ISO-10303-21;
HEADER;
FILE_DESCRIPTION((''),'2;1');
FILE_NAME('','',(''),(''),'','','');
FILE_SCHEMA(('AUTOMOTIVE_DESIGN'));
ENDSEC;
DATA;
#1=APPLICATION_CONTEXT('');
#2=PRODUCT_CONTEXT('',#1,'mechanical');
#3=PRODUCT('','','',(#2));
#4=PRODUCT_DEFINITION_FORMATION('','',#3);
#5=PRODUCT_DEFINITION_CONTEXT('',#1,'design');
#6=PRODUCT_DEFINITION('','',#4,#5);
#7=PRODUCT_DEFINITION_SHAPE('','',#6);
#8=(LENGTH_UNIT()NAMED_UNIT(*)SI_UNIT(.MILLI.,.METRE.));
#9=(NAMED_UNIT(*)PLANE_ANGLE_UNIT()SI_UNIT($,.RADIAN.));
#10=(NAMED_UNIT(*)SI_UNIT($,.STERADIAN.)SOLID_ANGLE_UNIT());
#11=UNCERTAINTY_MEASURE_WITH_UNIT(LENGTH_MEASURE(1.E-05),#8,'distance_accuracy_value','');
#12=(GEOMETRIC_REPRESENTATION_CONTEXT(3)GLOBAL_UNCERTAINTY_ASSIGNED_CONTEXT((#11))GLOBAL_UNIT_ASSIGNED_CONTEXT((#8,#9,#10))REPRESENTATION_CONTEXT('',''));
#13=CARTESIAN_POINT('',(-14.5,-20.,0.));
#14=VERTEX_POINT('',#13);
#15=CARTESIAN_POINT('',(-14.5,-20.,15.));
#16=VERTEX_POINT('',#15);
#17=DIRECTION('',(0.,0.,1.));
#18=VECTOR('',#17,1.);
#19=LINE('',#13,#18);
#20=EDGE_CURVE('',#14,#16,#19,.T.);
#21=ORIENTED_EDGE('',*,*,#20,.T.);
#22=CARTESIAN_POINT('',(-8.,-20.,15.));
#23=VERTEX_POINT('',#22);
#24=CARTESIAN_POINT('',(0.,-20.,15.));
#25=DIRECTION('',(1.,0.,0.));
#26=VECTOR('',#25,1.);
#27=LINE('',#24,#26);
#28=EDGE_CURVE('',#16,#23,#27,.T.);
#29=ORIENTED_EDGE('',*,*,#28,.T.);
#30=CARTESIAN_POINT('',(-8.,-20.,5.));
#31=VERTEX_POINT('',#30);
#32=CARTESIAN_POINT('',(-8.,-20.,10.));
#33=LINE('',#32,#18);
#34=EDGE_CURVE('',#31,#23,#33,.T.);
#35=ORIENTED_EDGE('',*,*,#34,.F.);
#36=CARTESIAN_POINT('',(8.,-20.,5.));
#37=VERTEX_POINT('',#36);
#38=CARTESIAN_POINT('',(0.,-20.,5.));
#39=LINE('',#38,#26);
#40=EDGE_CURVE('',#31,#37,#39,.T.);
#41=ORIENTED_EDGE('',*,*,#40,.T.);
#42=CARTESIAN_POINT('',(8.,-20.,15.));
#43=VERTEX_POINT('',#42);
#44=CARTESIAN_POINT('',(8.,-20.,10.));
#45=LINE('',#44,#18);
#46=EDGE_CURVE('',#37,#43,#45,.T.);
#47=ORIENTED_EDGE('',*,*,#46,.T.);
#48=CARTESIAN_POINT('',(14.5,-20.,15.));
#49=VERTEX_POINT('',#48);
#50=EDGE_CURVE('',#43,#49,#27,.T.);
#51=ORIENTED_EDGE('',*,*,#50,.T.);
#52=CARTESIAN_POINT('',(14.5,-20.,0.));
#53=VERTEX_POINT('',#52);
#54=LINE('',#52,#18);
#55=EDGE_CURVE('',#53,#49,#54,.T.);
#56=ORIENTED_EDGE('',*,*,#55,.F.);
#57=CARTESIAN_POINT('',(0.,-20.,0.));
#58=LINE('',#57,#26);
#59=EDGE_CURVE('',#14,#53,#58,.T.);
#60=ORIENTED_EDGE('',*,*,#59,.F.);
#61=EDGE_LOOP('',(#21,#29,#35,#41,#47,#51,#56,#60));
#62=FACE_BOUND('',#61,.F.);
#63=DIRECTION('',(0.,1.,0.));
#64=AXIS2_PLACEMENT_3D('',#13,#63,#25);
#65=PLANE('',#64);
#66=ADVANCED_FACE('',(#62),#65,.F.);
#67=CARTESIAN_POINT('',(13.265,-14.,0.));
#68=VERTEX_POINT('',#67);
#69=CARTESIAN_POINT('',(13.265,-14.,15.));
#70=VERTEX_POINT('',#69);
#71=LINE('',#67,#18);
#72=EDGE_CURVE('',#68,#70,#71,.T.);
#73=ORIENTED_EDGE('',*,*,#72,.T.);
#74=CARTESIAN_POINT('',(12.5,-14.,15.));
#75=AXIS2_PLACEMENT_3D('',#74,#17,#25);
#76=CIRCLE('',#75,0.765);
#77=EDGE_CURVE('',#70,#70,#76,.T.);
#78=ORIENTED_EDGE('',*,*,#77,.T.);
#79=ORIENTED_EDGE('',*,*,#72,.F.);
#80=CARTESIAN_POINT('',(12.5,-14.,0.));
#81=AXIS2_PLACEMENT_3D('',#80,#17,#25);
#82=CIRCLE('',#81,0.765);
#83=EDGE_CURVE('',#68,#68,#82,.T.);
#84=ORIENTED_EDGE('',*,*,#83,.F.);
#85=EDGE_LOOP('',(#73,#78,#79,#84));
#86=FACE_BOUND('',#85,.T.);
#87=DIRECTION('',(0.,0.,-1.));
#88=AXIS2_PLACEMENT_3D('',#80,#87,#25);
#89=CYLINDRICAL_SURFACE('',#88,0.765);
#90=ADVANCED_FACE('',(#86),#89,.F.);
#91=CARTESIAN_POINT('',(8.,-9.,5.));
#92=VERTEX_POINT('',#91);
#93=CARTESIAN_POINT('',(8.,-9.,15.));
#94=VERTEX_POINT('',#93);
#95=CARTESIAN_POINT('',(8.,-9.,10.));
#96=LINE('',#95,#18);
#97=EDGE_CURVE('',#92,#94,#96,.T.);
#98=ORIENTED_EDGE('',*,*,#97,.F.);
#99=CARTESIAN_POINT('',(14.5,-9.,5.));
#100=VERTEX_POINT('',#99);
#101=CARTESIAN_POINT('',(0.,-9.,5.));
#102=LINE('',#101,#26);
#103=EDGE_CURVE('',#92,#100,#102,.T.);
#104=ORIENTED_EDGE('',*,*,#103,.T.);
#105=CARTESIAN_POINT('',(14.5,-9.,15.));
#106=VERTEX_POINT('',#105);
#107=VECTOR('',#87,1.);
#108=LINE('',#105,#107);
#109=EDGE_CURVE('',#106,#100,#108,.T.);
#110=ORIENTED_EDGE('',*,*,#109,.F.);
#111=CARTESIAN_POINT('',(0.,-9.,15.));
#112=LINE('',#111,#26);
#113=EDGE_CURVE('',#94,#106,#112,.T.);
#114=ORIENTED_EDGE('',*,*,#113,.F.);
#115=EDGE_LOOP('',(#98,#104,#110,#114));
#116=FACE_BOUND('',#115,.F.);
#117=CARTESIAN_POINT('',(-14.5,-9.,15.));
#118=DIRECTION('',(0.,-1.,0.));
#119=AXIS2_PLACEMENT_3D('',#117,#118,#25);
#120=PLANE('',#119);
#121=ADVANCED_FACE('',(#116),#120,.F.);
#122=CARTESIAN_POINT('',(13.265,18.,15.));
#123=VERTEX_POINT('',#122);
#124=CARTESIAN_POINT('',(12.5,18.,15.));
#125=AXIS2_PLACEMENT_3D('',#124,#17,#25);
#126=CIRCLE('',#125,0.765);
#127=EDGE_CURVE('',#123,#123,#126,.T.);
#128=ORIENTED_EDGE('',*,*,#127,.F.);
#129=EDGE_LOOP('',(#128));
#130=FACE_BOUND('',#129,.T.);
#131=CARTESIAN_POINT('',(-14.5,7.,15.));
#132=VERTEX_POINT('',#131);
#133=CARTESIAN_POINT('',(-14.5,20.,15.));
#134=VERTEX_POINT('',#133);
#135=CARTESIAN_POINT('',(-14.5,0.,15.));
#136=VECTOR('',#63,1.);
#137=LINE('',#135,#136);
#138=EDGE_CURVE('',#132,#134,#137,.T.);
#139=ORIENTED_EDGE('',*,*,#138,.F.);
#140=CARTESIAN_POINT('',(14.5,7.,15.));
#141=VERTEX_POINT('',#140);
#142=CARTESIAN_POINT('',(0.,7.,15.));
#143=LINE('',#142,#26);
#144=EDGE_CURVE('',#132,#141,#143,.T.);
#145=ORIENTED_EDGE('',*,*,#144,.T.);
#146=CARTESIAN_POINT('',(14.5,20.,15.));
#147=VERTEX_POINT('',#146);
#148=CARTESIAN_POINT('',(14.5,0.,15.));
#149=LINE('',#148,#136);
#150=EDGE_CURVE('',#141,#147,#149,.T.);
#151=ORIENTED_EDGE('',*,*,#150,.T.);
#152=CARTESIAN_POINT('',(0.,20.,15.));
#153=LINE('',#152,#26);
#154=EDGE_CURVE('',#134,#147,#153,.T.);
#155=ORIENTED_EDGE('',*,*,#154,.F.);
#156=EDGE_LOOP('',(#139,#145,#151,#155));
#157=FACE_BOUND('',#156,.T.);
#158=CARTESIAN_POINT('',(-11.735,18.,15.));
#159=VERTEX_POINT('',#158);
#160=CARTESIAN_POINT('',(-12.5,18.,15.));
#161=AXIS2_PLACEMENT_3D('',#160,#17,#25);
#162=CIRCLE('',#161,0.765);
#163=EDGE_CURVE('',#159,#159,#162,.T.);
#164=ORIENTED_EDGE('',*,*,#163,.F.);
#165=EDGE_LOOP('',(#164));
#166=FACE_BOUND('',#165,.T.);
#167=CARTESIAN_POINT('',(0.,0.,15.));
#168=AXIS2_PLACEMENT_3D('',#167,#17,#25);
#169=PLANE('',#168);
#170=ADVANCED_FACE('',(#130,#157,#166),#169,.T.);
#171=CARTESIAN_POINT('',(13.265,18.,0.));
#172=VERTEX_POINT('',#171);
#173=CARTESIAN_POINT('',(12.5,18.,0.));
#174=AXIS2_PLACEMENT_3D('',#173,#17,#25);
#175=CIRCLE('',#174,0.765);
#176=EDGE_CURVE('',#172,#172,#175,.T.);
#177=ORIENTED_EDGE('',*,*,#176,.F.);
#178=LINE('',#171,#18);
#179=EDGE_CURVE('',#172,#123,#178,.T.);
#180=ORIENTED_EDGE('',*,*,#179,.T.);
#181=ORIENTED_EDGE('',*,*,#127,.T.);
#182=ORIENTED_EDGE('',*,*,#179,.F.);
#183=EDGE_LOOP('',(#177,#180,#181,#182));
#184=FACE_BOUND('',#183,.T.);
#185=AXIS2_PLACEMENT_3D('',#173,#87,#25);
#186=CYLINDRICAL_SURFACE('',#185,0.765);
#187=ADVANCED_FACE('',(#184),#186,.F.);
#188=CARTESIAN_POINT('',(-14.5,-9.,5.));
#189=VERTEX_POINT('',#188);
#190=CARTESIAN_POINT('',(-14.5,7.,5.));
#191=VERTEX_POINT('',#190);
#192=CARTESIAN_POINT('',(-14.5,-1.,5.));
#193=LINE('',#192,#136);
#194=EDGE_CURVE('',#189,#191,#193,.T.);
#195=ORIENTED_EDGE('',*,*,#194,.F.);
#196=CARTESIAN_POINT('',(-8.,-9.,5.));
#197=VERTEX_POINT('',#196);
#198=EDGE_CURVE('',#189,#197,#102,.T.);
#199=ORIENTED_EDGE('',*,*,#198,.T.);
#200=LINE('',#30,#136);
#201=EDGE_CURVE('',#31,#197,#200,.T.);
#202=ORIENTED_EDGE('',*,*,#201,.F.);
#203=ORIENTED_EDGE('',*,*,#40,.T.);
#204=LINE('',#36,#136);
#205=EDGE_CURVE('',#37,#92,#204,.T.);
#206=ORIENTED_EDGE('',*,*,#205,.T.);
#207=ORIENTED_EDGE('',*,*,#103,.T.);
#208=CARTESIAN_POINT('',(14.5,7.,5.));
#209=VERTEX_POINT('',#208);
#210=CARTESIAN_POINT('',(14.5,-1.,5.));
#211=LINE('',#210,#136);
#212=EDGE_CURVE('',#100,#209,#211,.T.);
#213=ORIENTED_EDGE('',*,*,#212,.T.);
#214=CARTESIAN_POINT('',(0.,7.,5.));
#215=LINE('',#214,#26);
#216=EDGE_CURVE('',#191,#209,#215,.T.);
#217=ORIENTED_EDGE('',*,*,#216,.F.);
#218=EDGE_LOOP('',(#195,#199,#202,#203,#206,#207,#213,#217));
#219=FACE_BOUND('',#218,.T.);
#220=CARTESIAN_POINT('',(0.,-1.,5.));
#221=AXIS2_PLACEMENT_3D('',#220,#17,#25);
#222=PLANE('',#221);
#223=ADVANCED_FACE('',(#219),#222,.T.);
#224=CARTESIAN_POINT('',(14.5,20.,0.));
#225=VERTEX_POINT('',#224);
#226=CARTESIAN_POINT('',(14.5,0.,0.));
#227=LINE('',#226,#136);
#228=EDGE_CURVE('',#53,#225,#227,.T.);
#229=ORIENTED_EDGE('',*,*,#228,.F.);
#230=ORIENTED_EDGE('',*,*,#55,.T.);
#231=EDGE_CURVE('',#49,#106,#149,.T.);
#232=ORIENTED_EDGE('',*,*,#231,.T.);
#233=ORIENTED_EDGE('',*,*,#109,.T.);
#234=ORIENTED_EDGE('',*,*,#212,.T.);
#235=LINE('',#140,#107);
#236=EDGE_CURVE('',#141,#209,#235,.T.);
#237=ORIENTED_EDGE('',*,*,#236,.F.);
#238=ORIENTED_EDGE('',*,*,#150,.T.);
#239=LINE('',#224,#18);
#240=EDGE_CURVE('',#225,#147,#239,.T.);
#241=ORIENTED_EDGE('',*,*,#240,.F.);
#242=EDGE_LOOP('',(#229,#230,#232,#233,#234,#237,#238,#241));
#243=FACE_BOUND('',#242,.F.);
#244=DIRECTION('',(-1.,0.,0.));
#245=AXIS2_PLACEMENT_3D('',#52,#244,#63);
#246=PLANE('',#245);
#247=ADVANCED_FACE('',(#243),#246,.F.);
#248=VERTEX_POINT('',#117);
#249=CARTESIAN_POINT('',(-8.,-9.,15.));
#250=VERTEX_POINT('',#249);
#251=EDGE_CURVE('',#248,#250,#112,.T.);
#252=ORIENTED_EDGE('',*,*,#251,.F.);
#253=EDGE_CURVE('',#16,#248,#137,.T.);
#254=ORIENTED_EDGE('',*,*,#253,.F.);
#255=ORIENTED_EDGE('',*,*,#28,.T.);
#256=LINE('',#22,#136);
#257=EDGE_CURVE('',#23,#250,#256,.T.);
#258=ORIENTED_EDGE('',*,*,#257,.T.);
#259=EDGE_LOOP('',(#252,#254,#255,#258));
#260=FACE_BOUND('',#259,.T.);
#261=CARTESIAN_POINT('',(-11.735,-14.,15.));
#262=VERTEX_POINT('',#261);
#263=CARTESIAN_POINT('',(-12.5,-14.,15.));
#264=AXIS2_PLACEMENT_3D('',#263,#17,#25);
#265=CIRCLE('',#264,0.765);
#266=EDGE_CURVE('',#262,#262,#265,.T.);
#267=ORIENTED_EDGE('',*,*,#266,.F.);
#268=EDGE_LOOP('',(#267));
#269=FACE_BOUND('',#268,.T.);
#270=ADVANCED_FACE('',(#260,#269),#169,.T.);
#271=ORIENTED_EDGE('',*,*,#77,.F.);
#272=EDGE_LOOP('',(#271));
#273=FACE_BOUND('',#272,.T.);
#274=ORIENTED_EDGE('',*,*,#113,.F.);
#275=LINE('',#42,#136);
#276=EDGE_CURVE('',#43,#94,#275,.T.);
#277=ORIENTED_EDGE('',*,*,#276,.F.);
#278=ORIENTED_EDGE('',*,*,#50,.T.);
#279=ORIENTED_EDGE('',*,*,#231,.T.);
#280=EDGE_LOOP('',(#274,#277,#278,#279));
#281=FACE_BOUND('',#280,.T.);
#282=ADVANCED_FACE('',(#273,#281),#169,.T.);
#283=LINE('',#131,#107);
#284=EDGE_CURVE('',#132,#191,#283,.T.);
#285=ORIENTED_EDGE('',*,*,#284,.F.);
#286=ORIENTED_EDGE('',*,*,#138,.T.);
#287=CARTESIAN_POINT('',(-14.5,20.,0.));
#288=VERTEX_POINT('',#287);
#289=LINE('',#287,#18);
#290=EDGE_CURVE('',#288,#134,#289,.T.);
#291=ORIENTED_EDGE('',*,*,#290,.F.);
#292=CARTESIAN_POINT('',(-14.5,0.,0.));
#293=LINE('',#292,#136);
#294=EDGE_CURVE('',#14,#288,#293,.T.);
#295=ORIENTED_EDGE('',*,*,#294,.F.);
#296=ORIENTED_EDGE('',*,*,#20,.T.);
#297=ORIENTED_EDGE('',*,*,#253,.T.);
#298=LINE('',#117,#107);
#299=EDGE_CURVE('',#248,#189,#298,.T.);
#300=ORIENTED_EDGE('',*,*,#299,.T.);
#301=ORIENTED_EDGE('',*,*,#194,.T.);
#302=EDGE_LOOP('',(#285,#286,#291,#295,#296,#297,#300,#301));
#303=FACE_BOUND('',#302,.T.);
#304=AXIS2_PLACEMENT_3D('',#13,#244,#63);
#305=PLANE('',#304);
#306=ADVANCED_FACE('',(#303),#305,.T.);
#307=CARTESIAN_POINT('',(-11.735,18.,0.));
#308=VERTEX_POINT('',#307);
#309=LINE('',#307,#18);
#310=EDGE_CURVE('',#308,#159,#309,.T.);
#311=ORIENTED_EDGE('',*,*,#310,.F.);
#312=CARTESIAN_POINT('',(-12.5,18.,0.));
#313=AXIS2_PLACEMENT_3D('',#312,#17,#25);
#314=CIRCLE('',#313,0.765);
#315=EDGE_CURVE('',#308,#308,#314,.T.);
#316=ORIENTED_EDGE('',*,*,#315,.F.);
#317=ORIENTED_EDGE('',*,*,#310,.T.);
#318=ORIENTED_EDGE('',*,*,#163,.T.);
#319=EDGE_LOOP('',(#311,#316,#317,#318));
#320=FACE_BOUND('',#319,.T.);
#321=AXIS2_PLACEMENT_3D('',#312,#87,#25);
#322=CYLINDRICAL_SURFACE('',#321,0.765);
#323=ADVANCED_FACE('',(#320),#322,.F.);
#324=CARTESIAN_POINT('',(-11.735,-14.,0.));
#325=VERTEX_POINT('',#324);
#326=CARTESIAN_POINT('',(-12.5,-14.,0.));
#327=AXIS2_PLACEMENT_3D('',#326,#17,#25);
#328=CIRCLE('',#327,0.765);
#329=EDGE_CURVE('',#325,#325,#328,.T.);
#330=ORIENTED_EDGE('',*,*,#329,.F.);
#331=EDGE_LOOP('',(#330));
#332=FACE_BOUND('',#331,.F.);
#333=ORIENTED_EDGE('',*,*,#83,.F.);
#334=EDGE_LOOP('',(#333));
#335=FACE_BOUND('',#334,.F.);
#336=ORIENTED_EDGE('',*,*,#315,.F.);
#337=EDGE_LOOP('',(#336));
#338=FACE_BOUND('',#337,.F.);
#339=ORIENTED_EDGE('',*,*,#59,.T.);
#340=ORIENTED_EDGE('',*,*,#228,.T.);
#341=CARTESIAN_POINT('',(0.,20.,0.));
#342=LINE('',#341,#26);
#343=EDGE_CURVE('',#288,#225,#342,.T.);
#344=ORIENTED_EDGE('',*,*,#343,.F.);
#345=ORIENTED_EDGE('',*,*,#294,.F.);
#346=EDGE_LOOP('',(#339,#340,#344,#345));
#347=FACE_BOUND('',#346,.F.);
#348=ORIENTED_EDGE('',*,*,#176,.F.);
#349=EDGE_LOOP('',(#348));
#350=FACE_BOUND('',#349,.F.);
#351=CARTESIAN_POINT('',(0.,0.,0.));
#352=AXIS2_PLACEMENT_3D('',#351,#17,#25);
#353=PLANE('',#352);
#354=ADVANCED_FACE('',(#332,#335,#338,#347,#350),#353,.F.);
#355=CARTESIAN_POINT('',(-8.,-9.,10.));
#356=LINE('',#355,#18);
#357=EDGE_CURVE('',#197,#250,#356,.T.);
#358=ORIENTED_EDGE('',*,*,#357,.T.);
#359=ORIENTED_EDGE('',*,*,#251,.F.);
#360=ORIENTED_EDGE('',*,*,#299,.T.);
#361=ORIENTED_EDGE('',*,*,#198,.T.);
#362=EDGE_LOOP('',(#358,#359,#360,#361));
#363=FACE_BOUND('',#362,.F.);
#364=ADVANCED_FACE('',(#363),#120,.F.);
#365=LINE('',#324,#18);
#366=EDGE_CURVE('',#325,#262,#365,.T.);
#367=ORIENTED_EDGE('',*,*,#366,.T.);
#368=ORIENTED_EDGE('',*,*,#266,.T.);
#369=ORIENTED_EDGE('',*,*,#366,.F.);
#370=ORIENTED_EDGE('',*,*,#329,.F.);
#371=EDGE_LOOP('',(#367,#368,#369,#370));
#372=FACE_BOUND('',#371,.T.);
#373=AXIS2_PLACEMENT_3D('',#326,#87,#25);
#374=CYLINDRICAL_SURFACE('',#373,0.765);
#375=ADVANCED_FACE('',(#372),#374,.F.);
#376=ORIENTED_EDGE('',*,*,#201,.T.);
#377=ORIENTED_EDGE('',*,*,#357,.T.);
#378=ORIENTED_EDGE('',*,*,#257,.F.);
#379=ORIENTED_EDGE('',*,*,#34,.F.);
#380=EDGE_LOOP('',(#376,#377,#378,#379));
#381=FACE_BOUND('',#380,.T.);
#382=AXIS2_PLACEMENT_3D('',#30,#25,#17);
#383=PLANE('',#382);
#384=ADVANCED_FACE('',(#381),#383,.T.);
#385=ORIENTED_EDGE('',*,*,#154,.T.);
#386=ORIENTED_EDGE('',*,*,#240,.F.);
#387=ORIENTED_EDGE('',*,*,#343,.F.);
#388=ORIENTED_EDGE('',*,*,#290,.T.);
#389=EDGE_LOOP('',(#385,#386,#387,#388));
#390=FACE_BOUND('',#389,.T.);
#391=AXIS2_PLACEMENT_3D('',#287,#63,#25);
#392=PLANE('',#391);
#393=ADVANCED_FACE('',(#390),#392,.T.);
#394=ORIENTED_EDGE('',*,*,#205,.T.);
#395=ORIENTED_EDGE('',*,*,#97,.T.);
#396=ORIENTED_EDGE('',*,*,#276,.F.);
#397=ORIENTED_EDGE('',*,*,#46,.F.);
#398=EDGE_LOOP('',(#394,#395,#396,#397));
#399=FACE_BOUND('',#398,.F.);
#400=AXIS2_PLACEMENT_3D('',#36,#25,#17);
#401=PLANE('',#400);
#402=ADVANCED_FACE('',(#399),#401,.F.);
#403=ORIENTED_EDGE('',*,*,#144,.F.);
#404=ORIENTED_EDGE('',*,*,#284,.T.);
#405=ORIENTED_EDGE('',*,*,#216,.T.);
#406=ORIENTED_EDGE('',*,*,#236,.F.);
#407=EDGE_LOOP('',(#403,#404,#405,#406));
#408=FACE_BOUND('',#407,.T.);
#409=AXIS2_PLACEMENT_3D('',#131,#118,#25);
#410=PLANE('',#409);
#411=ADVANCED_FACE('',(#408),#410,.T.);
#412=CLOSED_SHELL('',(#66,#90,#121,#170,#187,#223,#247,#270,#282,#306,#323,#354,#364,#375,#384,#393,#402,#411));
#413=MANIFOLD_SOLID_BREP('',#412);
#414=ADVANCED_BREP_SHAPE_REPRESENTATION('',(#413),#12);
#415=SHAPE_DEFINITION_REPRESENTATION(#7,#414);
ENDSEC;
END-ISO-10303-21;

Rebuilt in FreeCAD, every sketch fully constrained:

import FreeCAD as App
import Part
import Sketcher
from FreeCAD import Vector
Q = App.Units.Quantity


def add_polygon(sketch, points):
    """Adds a closed chain of lines whose ends are joined by coincident constraints."""
    first, n = sketch.GeometryCount, len(points)
    for a, b in zip(points, points[1:] + points[:1]):
        sketch.addGeometry(Part.LineSegment(App.Vector(*a, 0), App.Vector(*b, 0)), False)
    for i in range(n):
        sketch.addConstraint(Sketcher.Constraint("Coincident", first + i, 2, first + (i + 1) % n, 1))

doc = App.newDocument("Part")
params = doc.addObject("Spreadsheet::Sheet", "Params")
for row, (alias, value) in enumerate([
    ("sketch1_diameter", "1.53 mm"),
    ("sketch1_width", "29 mm"),
    ("sketch1_height", "40 mm"),
    ("pad1_length", "15 mm"),
    ("sketch2_width", "29 mm"),
    ("sketch2_height", "16 mm"),
    ("pocket1_length", "10 mm"),
    ("sketch3_width", "16 mm"),
    ("sketch3_height", "10 mm"),
    ("pocket2_length", "25 mm"),
], start=1):
    params.set(f"A{row}", alias)
    params.set(f"B{row}", "=" + value)
    params.setAlias(f"B{row}", alias)

body = doc.addObject("PartDesign::Body", "Body")

# Sketch on XY plane
sketch1 = body.newObject("Sketcher::SketchObject", "Sketch")
sketch1.AttachmentSupport = (doc.getObject("XY_Plane"), [""])
sketch1.MapMode = "FlatFace"
add_polygon(sketch1, [(-14.5, 20), (-14.5, -20), (14.5, -20), (14.5, 20)])  # lines 0-3
sketch1.addGeometry(Part.Circle(Vector(-12.5, -14, 0), Vector(0, 0, 1), 0.8), False)  # 4
sketch1.addGeometry(Part.Circle(Vector(12.5, -14, 0), Vector(0, 0, 1), 0.8), False)  # 5
sketch1.addGeometry(Part.Circle(Vector(-12.5, 18, 0), Vector(0, 0, 1), 0.8), False)  # 6
sketch1.addGeometry(Part.Circle(Vector(12.5, 18, 0), Vector(0, 0, 1), 0.8), False)  # 7
sketch1.addConstraint([
    Sketcher.Constraint("Vertical", 0),
    Sketcher.Constraint("Horizontal", 1),
    Sketcher.Constraint("Vertical", 2),
    Sketcher.Constraint("Horizontal", 3),
    Sketcher.Constraint("Equal", 4, 5),
    Sketcher.Constraint("Equal", 5, 6),
    Sketcher.Constraint("Equal", 6, 7),
    Sketcher.Constraint("Symmetric", 0, 2, 2, 2, -1, 1),
    Sketcher.Constraint("Symmetric", 4, 3, 5, 3, -2),
    Sketcher.Constraint("Symmetric", 6, 3, 7, 3, -2),
    Sketcher.Constraint("Vertical", 4, 3, 6, 3),
    Sketcher.Constraint("Diameter", 4, Q("1.53 mm")),
    Sketcher.Constraint("DistanceX", 1, 1, 1, 2, Q("29 mm")),
    Sketcher.Constraint("DistanceY", 0, 2, 0, 1, Q("40 mm")),
    Sketcher.Constraint("DistanceY", 4, 3, -1, 1, Q("14 mm")),
    Sketcher.Constraint("DistanceY", -1, 1, 6, 3, Q("18 mm")),
    Sketcher.Constraint("DistanceX", 4, 3, 5, 3, Q("25 mm")),
])
sketch1.setExpression("Constraints[15]", "Params.sketch1_diameter")
sketch1.setExpression("Constraints[16]", "Params.sketch1_width")
sketch1.setExpression("Constraints[17]", "Params.sketch1_height")
pad1 = body.newObject("PartDesign::Pad", "Pad")
pad1.Profile = sketch1
pad1.setExpression("Length", "Params.pad1_length")

# Sketch on XY plane
sketch2 = body.newObject("Sketcher::SketchObject", "Sketch001")
sketch2.AttachmentSupport = (doc.getObject("XY_Plane"), [""])
sketch2.MapMode = "FlatFace"
sketch2.AttachmentOffset = App.Placement(Vector(0, 0, 15), App.Rotation())
add_polygon(sketch2, [(-14, 7), (-14, -9), (14, -9), (14, 7)])  # lines 0-3
sketch2.addConstraint([
    Sketcher.Constraint("Vertical", 0),
    Sketcher.Constraint("Horizontal", 1),
    Sketcher.Constraint("Vertical", 2),
    Sketcher.Constraint("Horizontal", 3),
    Sketcher.Constraint("DistanceX", 1, 1, 1, 2, Q("29 mm")),
    Sketcher.Constraint("DistanceY", 0, 2, 0, 1, Q("16 mm")),
    Sketcher.Constraint("DistanceY", 0, 2, -1, 1, Q("9 mm")),
    Sketcher.Constraint("DistanceX", 0, 2, -1, 1, Q("14.5 mm")),
])
sketch2.setExpression("Constraints[8]", "Params.sketch2_width")
sketch2.setExpression("Constraints[9]", "Params.sketch2_height")
pocket1 = body.newObject("PartDesign::Pocket", "Pocket")
pocket1.Profile = sketch2
pocket1.setExpression("Length", "Params.pocket1_length")

# Sketch on XZ plane
sketch3 = body.newObject("Sketcher::SketchObject", "Sketch002")
sketch3.AttachmentSupport = (doc.getObject("XZ_Plane"), [""])
sketch3.MapMode = "FlatFace"
sketch3.AttachmentOffset = App.Placement(Vector(0, 0, 20), App.Rotation())
add_polygon(sketch3, [(-8, 15), (-8, 5), (8, 5), (8, 15)])  # lines 0-3
sketch3.addConstraint([
    Sketcher.Constraint("Vertical", 0),
    Sketcher.Constraint("Horizontal", 1),
    Sketcher.Constraint("Vertical", 2),
    Sketcher.Constraint("Horizontal", 3),
    Sketcher.Constraint("DistanceX", 1, 1, 1, 2, Q("16 mm")),
    Sketcher.Constraint("DistanceY", 0, 2, 0, 1, Q("10 mm")),
    Sketcher.Constraint("DistanceX", 0, 2, -1, 1, Q("8 mm")),
    Sketcher.Constraint("DistanceY", -1, 1, 0, 2, Q("5 mm")),
])
sketch3.setExpression("Constraints[8]", "Params.sketch3_width")
sketch3.setExpression("Constraints[9]", "Params.sketch3_height")
pocket2 = body.newObject("PartDesign::Pocket", "Pocket001")
pocket2.Profile = sketch3
pocket2.setExpression("Length", "Params.pocket2_length")

doc.recompute()
